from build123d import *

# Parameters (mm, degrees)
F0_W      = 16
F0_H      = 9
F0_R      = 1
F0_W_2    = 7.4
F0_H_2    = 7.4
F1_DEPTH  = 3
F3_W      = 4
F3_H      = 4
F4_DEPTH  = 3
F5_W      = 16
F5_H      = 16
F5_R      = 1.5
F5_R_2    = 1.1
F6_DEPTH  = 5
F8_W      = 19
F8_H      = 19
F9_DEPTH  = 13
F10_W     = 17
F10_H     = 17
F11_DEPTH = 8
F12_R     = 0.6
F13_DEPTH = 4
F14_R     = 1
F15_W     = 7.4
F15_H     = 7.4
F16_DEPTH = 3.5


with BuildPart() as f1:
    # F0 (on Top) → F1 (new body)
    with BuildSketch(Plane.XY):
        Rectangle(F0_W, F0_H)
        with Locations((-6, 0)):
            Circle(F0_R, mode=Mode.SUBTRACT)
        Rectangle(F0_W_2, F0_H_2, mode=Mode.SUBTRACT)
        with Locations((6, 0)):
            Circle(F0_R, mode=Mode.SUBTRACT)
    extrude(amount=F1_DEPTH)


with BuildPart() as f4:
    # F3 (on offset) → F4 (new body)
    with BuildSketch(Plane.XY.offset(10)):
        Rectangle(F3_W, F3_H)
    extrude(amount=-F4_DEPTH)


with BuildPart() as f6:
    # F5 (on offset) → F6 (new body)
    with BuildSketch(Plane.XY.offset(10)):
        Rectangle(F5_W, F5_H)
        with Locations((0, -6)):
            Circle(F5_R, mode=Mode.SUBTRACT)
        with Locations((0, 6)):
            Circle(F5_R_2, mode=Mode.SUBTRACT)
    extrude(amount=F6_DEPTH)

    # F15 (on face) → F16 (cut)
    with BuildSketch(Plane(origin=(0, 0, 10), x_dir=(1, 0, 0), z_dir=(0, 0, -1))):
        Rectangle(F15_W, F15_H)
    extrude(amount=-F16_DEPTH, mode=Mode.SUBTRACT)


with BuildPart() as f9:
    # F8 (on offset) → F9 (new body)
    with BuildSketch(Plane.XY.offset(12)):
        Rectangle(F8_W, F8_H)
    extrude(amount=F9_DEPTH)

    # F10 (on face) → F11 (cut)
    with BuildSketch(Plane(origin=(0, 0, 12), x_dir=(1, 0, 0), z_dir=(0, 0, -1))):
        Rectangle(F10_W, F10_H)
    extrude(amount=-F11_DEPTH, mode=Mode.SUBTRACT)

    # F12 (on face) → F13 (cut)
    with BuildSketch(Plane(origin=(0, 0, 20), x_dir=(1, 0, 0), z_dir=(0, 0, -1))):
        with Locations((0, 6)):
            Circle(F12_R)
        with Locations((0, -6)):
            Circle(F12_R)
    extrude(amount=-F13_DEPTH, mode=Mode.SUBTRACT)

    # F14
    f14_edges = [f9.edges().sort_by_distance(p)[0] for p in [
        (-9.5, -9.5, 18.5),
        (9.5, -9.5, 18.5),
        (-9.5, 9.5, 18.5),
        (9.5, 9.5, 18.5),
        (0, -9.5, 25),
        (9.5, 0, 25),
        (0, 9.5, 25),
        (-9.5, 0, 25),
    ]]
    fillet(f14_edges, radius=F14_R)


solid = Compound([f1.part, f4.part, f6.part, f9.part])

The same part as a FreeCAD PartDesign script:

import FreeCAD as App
import Part
import Sketcher
from FreeCAD import Vector


def edges_at(feature, points):
    """Names of the edges that pass closest to the given points."""
    edges = feature.Shape.Edges
    near = lambda p: min(range(len(edges)), key=lambda i: edges[i].distToShape(Part.Vertex(*p))[0])
    return sorted({f"Edge{near(p) + 1}" for p in points})

doc = App.newDocument("Part")
params = doc.addObject("Spreadsheet::Sheet", "Params")
for row, (alias, value) in enumerate([
    ("sketch1_diameter", "2 mm"),
    ("sketch1_width", "16 mm"),
    ("sketch1_height", "9 mm"),
    ("sketch1_width2", "7.4 mm"),
    ("pad1_length", "3 mm"),
    ("sketch2_width", "4 mm"),
    ("pad2_length", "3 mm"),
    ("sketch3_diameter", "3 mm"),
    ("sketch3_diameter2", "2.2 mm"),
    ("sketch3_width", "16 mm"),
    ("pad3_length", "5 mm"),
    ("sketch4_width", "7.4 mm"),
    ("pocket1_length", "3.5 mm"),
    ("sketch5_width", "19 mm"),
    ("pad4_length", "13 mm"),
    ("sketch6_width", "17 mm"),
    ("pocket2_length", "8 mm"),
    ("sketch7_diameter", "1.2 mm"),
    ("pocket3_length", "4 mm"),
    ("fillet_radius", "1 mm"),
], start=1):
    params.set(f"A{row}", alias)
    params.set(f"B{row}", "=" + value)
    params.setAlias(f"B{row}", alias)

body = doc.addObject("PartDesign::Body", "Body")

# Sketch on XY plane
sketch1 = body.newObject("Sketcher::SketchObject", "Sketch")
sketch1.AttachmentSupport = (doc.getObject("XY_Plane"), [""])
sketch1.MapMode = "FlatFace"
sketch1.addGeometry(Part.LineSegment(Vector(-8, 4.5, 0), Vector(-8, -4.5, 0)), False)
sketch1.addGeometry(Part.LineSegment(Vector(-8, -4.5, 0), Vector(8, -4.5, 0)), False)
sketch1.addGeometry(Part.LineSegment(Vector(8, -4.5, 0), Vector(8, 4.5, 0)), False)
sketch1.addGeometry(Part.LineSegment(Vector(8, 4.5, 0), Vector(-8, 4.5, 0)), False)
sketch1.addGeometry(Part.Circle(Vector(-6, 0, 0), Vector(0, 0, 1), 1), False)
sketch1.addGeometry(Part.LineSegment(Vector(3.7, -3.7, 0), Vector(-3.7, -3.7, 0)), False)
sketch1.addGeometry(Part.LineSegment(Vector(-3.7, -3.7, 0), Vector(-3.7, 3.7, 0)), False)
sketch1.addGeometry(Part.LineSegment(Vector(-3.7, 3.7, 0), Vector(3.7, 3.7, 0)), False)
sketch1.addGeometry(Part.LineSegment(Vector(3.7, 3.7, 0), Vector(3.7, -3.7, 0)), False)
sketch1.addGeometry(Part.Circle(Vector(6, 0, 0), Vector(0, 0, 1), 1), False)
sketch1.addConstraint(Sketcher.Constraint("Coincident", 0, 2, 1, 1))
sketch1.addConstraint(Sketcher.Constraint("Coincident", 1, 2, 2, 1))
sketch1.addConstraint(Sketcher.Constraint("Coincident", 2, 2, 3, 1))
sketch1.addConstraint(Sketcher.Constraint("Coincident", 3, 2, 0, 1))
sketch1.addConstraint(Sketcher.Constraint("Coincident", 5, 2, 6, 1))
sketch1.addConstraint(Sketcher.Constraint("Coincident", 6, 2, 7, 1))
sketch1.addConstraint(Sketcher.Constraint("Coincident", 7, 2, 8, 1))
sketch1.addConstraint(Sketcher.Constraint("Coincident", 8, 2, 5, 1))
sketch1.addConstraint(Sketcher.Constraint("Vertical", 0))
sketch1.addConstraint(Sketcher.Constraint("Horizontal", 1))
sketch1.addConstraint(Sketcher.Constraint("Vertical", 2))
sketch1.addConstraint(Sketcher.Constraint("Horizontal", 3))
sketch1.addConstraint(Sketcher.Constraint("Horizontal", 5))
sketch1.addConstraint(Sketcher.Constraint("Vertical", 6))
sketch1.addConstraint(Sketcher.Constraint("Horizontal", 7))
sketch1.addConstraint(Sketcher.Constraint("Vertical", 8))
sketch1.addConstraint(Sketcher.Constraint("Equal", 4, 9))
sketch1.addConstraint(Sketcher.Constraint("Symmetric", 4, 3, 9, 3, -1, 1))
sketch1.addConstraint(Sketcher.Constraint("Symmetric", 0, 2, 2, 2, -1, 1))
sketch1.addConstraint(Sketcher.Constraint("Symmetric", 5, 2, 7, 2, -1, 1))
sketch1.addConstraint(Sketcher.Constraint("PointOnObject", 4, 3, -1))
sketch1.addConstraint(Sketcher.Constraint("Equal", 7, 6))
sketch1.addConstraint(Sketcher.Constraint("Diameter", 4, 2.0))
sketch1.addConstraint(Sketcher.Constraint("DistanceX", 1, 1, 1, 2, 16.0))
sketch1.addConstraint(Sketcher.Constraint("DistanceY", 0, 2, 0, 1, 9.0))
sketch1.addConstraint(Sketcher.Constraint("DistanceX", 5, 2, 5, 1, 7.4))
sketch1.addConstraint(Sketcher.Constraint("DistanceX", 4, 3, -1, 1, 6.0))
sketch1.setExpression("Constraints[22]", "Params.sketch1_diameter")
sketch1.setExpression("Constraints[23]", "Params.sketch1_width")
sketch1.setExpression("Constraints[24]", "Params.sketch1_height")
sketch1.setExpression("Constraints[25]", "Params.sketch1_width2")
pad1 = body.newObject("PartDesign::Pad", "Pad")
pad1.Profile = sketch1
pad1.setExpression("Length", "Params.pad1_length")
body2 = doc.addObject("PartDesign::Body", "Body001")

# Sketch on XY plane
sketch2 = body2.newObject("Sketcher::SketchObject", "Sketch001")
sketch2.AttachmentSupport = (doc.getObject("XY_Plane001"), [""])
sketch2.MapMode = "FlatFace"
sketch2.AttachmentOffset = App.Placement(Vector(0, 0, 10), App.Rotation())
sketch2.addGeometry(Part.LineSegment(Vector(-2, 2, 0), Vector(-2, -2, 0)), False)
sketch2.addGeometry(Part.LineSegment(Vector(-2, -2, 0), Vector(2, -2, 0)), False)
sketch2.addGeometry(Part.LineSegment(Vector(2, -2, 0), Vector(2, 2, 0)), False)
sketch2.addGeometry(Part.LineSegment(Vector(2, 2, 0), Vector(-2, 2, 0)), False)
sketch2.addConstraint(Sketcher.Constraint("Coincident", 0, 2, 1, 1))
sketch2.addConstraint(Sketcher.Constraint("Coincident", 1, 2, 2, 1))
sketch2.addConstraint(Sketcher.Constraint("Coincident", 2, 2, 3, 1))
sketch2.addConstraint(Sketcher.Constraint("Coincident", 3, 2, 0, 1))
sketch2.addConstraint(Sketcher.Constraint("Vertical", 0))
sketch2.addConstraint(Sketcher.Constraint("Horizontal", 1))
sketch2.addConstraint(Sketcher.Constraint("Vertical", 2))
sketch2.addConstraint(Sketcher.Constraint("Horizontal", 3))
sketch2.addConstraint(Sketcher.Constraint("Symmetric", 0, 2, 2, 2, -1, 1))
sketch2.addConstraint(Sketcher.Constraint("Equal", 3, 0))
sketch2.addConstraint(Sketcher.Constraint("DistanceX", 1, 1, 1, 2, 4.0))
sketch2.setExpression("Constraints[10]", "Params.sketch2_width")
pad2 = body2.newObject("PartDesign::Pad", "Pad001")
pad2.Profile = sketch2
pad2.setExpression("Length", "Params.pad2_length")
pad2.Reversed = True
body3 = doc.addObject("PartDesign::Body", "Body002")

# Sketch on XY plane
sketch3 = body3.newObject("Sketcher::SketchObject", "Sketch002")
sketch3.AttachmentSupport = (doc.getObject("XY_Plane002"), [""])
sketch3.MapMode = "FlatFace"
sketch3.AttachmentOffset = App.Placement(Vector(0, 0, 10), App.Rotation())
sketch3.addGeometry(Part.LineSegment(Vector(-8, 8, 0), Vector(-8, -8, 0)), False)
sketch3.addGeometry(Part.LineSegment(Vector(-8, -8, 0), Vector(8, -8, 0)), False)
sketch3.addGeometry(Part.LineSegment(Vector(8, -8, 0), Vector(8, 8, 0)), False)
sketch3.addGeometry(Part.LineSegment(Vector(8, 8, 0), Vector(-8, 8, 0)), False)
sketch3.addGeometry(Part.Circle(Vector(0, -6, 0), Vector(0, 0, 1), 1.5), False)
sketch3.addGeometry(Part.Circle(Vector(0, 6, 0), Vector(0, 0, 1), 1.1), False)
sketch3.addConstraint(Sketcher.Constraint("Coincident", 0, 2, 1, 1))
sketch3.addConstraint(Sketcher.Constraint("Coincident", 1, 2, 2, 1))
sketch3.addConstraint(Sketcher.Constraint("Coincident", 2, 2, 3, 1))
sketch3.addConstraint(Sketcher.Constraint("Coincident", 3, 2, 0, 1))
sketch3.addConstraint(Sketcher.Constraint("Vertical", 0))
sketch3.addConstraint(Sketcher.Constraint("Horizontal", 1))
sketch3.addConstraint(Sketcher.Constraint("Vertical", 2))
sketch3.addConstraint(Sketcher.Constraint("Horizontal", 3))
sketch3.addConstraint(Sketcher.Constraint("Symmetric", 4, 3, 5, 3, -1, 1))
sketch3.addConstraint(Sketcher.Constraint("Symmetric", 0, 2, 2, 2, -1, 1))
sketch3.addConstraint(Sketcher.Constraint("PointOnObject", 4, 3, -2))
sketch3.addConstraint(Sketcher.Constraint("Equal", 3, 0))
sketch3.addConstraint(Sketcher.Constraint("Diameter", 4, 3.0))
sketch3.addConstraint(Sketcher.Constraint("Diameter", 5, 2.2))
sketch3.addConstraint(Sketcher.Constraint("DistanceX", 1, 1, 1, 2, 16.0))
sketch3.addConstraint(Sketcher.Constraint("DistanceY", 4, 3, -1, 1, 6.0))
sketch3.setExpression("Constraints[12]", "Params.sketch3_diameter")
sketch3.setExpression("Constraints[13]", "Params.sketch3_diameter2")
sketch3.setExpression("Constraints[14]", "Params.sketch3_width")
pad3 = body3.newObject("PartDesign::Pad", "Pad002")
pad3.Profile = sketch3
pad3.setExpression("Length", "Params.pad3_length")

# Sketch on XY plane
sketch4 = body3.newObject("Sketcher::SketchObject", "Sketch003")
sketch4.AttachmentSupport = (doc.getObject("XY_Plane002"), [""])
sketch4.MapMode = "FlatFace"
sketch4.AttachmentOffset = App.Placement(Vector(0, 0, 10), App.Rotation())
sketch4.addGeometry(Part.LineSegment(Vector(-4, -4, 0), Vector(-4, 4, 0)), False)
sketch4.addGeometry(Part.LineSegment(Vector(-4, 4, 0), Vector(4, 4, 0)), False)
sketch4.addGeometry(Part.LineSegment(Vector(4, 4, 0), Vector(4, -4, 0)), False)
sketch4.addGeometry(Part.LineSegment(Vector(4, -4, 0), Vector(-4, -4, 0)), False)
sketch4.addConstraint(Sketcher.Constraint("Coincident", 0, 2, 1, 1))
sketch4.addConstraint(Sketcher.Constraint("Coincident", 1, 2, 2, 1))
sketch4.addConstraint(Sketcher.Constraint("Coincident", 2, 2, 3, 1))
sketch4.addConstraint(Sketcher.Constraint("Coincident", 3, 2, 0, 1))
sketch4.addConstraint(Sketcher.Constraint("Vertical", 0))
sketch4.addConstraint(Sketcher.Constraint("Horizontal", 1))
sketch4.addConstraint(Sketcher.Constraint("Vertical", 2))
sketch4.addConstraint(Sketcher.Constraint("Horizontal", 3))
sketch4.addConstraint(Sketcher.Constraint("Symmetric", 0, 2, 2, 2, -1, 1))
sketch4.addConstraint(Sketcher.Constraint("Equal", 3, 0))
sketch4.addConstraint(Sketcher.Constraint("DistanceX", 1, 1, 1, 2, 7.4))
sketch4.setExpression("Constraints[10]", "Params.sketch4_width")
pocket1 = body3.newObject("PartDesign::Pocket", "Pocket")
pocket1.Profile = sketch4
pocket1.setExpression("Length", "Params.pocket1_length")
pocket1.Reversed = True
body4 = doc.addObject("PartDesign::Body", "Body003")

# Sketch on XY plane
sketch5 = body4.newObject("Sketcher::SketchObject", "Sketch004")
sketch5.AttachmentSupport = (doc.getObject("XY_Plane003"), [""])
sketch5.MapMode = "FlatFace"
sketch5.AttachmentOffset = App.Placement(Vector(0, 0, 12), App.Rotation())
sketch5.addGeometry(Part.LineSegment(Vector(-10, 10, 0), Vector(-10, -10, 0)), False)
sketch5.addGeometry(Part.LineSegment(Vector(-10, -10, 0), Vector(10, -10, 0)), False)
sketch5.addGeometry(Part.LineSegment(Vector(10, -10, 0), Vector(10, 10, 0)), False)
sketch5.addGeometry(Part.LineSegment(Vector(10, 10, 0), Vector(-10, 10, 0)), False)
sketch5.addConstraint(Sketcher.Constraint("Coincident", 0, 2, 1, 1))
sketch5.addConstraint(Sketcher.Constraint("Coincident", 1, 2, 2, 1))
sketch5.addConstraint(Sketcher.Constraint("Coincident", 2, 2, 3, 1))
sketch5.addConstraint(Sketcher.Constraint("Coincident", 3, 2, 0, 1))
sketch5.addConstraint(Sketcher.Constraint("Vertical", 0))
sketch5.addConstraint(Sketcher.Constraint("Horizontal", 1))
sketch5.addConstraint(Sketcher.Constraint("Vertical", 2))
sketch5.addConstraint(Sketcher.Constraint("Horizontal", 3))
sketch5.addConstraint(Sketcher.Constraint("Symmetric", 0, 2, 2, 2, -1, 1))
sketch5.addConstraint(Sketcher.Constraint("Equal", 3, 0))
sketch5.addConstraint(Sketcher.Constraint("DistanceX", 1, 1, 1, 2, 19.0))
sketch5.setExpression("Constraints[10]", "Params.sketch5_width")
pad4 = body4.newObject("PartDesign::Pad", "Pad003")
pad4.Profile = sketch5
pad4.setExpression("Length", "Params.pad4_length")

# Sketch on XY plane
sketch6 = body4.newObject("Sketcher::SketchObject", "Sketch005")
sketch6.AttachmentSupport = (doc.getObject("XY_Plane003"), [""])
sketch6.MapMode = "FlatFace"
sketch6.AttachmentOffset = App.Placement(Vector(0, 0, 12), App.Rotation())
sketch6.addGeometry(Part.LineSegment(Vector(-8, -8, 0), Vector(-8, 8, 0)), False)
sketch6.addGeometry(Part.LineSegment(Vector(-8, 8, 0), Vector(8, 8, 0)), False)
sketch6.addGeometry(Part.LineSegment(Vector(8, 8, 0), Vector(8, -8, 0)), False)
sketch6.addGeometry(Part.LineSegment(Vector(8, -8, 0), Vector(-8, -8, 0)), False)
sketch6.addConstraint(Sketcher.Constraint("Coincident", 0, 2, 1, 1))
sketch6.addConstraint(Sketcher.Constraint("Coincident", 1, 2, 2, 1))
sketch6.addConstraint(Sketcher.Constraint("Coincident", 2, 2, 3, 1))
sketch6.addConstraint(Sketcher.Constraint("Coincident", 3, 2, 0, 1))
sketch6.addConstraint(Sketcher.Constraint("Vertical", 0))
sketch6.addConstraint(Sketcher.Constraint("Horizontal", 1))
sketch6.addConstraint(Sketcher.Constraint("Vertical", 2))
sketch6.addConstraint(Sketcher.Constraint("Horizontal", 3))
sketch6.addConstraint(Sketcher.Constraint("Symmetric", 0, 2, 2, 2, -1, 1))
sketch6.addConstraint(Sketcher.Constraint("Equal", 3, 0))
sketch6.addConstraint(Sketcher.Constraint("DistanceX", 1, 1, 1, 2, 17.0))
sketch6.setExpression("Constraints[10]", "Params.sketch6_width")
pocket2 = body4.newObject("PartDesign::Pocket", "Pocket001")
pocket2.Profile = sketch6
pocket2.setExpression("Length", "Params.pocket2_length")
pocket2.Reversed = True

# Sketch on XY plane
sketch7 = body4.newObject("Sketcher::SketchObject", "Sketch006")
sketch7.AttachmentSupport = (doc.getObject("XY_Plane003"), [""])
sketch7.MapMode = "FlatFace"
sketch7.AttachmentOffset = App.Placement(Vector(0, 0, 20), App.Rotation())
sketch7.addGeometry(Part.Circle(Vector(0, -6, 0), Vector(0, 0, 1), 0.6), False)
sketch7.addGeometry(Part.Circle(Vector(0, 6, 0), Vector(0, 0, 1), 0.6), False)
sketch7.addConstraint(Sketcher.Constraint("Equal", 0, 1))
sketch7.addConstraint(Sketcher.Constraint("Symmetric", 0, 3, 1, 3, -1, 1))
sketch7.addConstraint(Sketcher.Constraint("PointOnObject", 0, 3, -2))
sketch7.addConstraint(Sketcher.Constraint("Diameter", 0, 1.2))
sketch7.addConstraint(Sketcher.Constraint("DistanceY", 0, 3, -1, 1, 6.0))
sketch7.setExpression("Constraints[3]", "Params.sketch7_diameter")
pocket3 = body4.newObject("PartDesign::Pocket", "Pocket002")
pocket3.Profile = sketch7
pocket3.setExpression("Length", "Params.pocket3_length")
pocket3.Reversed = True
doc.recompute()

fillet = body4.newObject("PartDesign::Fillet", "Fillet")
fillet.Base = (pocket3, edges_at(pocket3, [
    (-9.5, -9.5, 18.5),
    (9.5, -9.5, 18.5),
    (-9.5, 9.5, 18.5),
    (9.5, 9.5, 18.5),
    (0, -9.5, 25),
    (9.5, 0, 25),
    (0, 9.5, 25),
    (-9.5, 0, 25),
]))
fillet.setExpression("Radius", "Params.fillet_radius")

doc.recompute()
